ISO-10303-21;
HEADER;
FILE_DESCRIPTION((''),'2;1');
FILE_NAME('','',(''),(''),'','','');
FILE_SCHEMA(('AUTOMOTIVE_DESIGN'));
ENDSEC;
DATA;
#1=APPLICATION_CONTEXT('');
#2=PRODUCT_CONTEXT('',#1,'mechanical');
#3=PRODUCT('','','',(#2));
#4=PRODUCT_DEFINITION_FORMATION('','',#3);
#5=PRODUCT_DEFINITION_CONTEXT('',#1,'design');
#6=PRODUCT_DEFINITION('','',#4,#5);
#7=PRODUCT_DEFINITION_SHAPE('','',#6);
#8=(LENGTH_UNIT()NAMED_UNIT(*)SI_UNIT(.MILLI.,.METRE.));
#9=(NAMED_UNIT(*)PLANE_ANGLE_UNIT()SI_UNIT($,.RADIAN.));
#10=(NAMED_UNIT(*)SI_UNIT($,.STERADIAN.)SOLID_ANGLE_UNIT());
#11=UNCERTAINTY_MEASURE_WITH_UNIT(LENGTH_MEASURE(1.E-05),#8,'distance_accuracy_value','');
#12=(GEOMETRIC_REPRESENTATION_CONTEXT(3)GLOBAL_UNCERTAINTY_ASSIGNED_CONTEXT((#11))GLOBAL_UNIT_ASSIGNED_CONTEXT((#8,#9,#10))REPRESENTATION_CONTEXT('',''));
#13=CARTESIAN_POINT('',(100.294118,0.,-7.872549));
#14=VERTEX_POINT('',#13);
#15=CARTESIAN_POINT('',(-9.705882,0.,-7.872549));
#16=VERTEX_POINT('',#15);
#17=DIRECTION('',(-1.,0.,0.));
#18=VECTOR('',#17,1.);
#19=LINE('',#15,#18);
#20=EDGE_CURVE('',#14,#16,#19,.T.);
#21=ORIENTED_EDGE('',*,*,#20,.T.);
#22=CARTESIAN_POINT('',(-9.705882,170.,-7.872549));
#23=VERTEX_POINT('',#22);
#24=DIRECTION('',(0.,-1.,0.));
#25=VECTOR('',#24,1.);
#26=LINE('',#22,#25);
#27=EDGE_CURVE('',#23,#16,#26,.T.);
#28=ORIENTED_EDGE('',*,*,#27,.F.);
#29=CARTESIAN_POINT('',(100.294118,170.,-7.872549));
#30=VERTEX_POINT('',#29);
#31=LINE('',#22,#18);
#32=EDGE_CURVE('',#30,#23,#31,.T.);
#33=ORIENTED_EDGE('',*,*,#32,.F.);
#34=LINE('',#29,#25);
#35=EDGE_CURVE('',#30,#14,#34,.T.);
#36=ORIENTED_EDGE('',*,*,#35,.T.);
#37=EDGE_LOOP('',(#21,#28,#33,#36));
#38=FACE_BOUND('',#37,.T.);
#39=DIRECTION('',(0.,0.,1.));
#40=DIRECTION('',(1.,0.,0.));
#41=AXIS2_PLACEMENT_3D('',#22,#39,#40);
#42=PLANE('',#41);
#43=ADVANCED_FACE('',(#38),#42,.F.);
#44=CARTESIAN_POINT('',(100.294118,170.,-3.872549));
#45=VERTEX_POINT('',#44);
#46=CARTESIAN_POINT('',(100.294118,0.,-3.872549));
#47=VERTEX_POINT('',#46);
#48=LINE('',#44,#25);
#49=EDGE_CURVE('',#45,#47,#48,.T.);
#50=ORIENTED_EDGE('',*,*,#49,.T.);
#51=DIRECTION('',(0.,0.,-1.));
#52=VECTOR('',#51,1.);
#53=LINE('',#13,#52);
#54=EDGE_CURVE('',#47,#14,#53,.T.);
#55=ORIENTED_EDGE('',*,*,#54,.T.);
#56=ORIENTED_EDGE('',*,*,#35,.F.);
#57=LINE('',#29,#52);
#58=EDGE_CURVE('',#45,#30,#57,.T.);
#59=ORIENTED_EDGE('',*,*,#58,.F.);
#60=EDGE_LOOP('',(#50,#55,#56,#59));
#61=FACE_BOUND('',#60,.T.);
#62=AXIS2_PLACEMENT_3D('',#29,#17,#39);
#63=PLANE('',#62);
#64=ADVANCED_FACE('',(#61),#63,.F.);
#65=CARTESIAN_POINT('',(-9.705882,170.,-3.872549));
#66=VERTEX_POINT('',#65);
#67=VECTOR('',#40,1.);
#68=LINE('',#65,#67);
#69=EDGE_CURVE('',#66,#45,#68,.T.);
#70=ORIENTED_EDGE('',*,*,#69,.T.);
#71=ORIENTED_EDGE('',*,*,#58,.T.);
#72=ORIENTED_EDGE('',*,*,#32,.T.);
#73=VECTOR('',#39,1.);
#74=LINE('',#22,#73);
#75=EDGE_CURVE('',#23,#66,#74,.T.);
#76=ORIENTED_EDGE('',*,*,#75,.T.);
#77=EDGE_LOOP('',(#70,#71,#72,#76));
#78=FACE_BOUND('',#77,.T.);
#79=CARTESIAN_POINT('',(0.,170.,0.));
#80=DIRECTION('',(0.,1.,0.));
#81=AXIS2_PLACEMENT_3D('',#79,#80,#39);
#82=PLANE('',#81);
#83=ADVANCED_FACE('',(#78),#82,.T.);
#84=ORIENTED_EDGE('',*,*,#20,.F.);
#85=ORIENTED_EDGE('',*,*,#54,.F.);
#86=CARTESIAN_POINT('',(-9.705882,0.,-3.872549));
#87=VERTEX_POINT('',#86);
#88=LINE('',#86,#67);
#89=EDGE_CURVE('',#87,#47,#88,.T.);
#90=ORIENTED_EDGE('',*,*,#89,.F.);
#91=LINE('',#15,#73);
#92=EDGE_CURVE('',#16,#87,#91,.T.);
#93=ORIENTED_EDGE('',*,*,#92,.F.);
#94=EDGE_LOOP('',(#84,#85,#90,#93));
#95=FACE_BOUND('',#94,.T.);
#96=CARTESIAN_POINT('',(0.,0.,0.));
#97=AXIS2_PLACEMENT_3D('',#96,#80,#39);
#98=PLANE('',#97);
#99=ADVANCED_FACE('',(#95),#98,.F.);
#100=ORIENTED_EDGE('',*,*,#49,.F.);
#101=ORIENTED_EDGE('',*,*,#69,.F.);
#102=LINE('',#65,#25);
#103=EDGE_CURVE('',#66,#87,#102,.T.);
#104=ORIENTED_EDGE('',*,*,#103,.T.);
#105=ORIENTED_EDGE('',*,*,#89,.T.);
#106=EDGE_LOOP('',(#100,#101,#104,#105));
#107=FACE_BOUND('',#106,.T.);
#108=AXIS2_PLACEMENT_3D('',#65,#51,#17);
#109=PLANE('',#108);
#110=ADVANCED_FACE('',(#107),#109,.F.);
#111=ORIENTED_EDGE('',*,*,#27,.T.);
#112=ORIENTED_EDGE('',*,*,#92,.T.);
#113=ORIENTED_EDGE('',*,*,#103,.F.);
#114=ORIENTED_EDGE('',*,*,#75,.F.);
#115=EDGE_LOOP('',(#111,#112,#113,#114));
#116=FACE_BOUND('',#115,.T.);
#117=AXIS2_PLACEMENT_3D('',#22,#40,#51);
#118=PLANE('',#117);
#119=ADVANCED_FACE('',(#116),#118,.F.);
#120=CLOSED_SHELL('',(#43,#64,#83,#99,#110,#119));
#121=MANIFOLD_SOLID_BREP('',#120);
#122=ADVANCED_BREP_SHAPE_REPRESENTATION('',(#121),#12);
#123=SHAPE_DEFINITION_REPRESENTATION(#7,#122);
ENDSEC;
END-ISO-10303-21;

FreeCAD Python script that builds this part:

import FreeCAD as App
import Part
import Sketcher
Q = App.Units.Quantity


def add_polygon(sketch, points):
    """Adds a closed chain of lines whose ends are joined by coincident constraints."""
    first, n = sketch.GeometryCount, len(points)
    for a, b in zip(points, points[1:] + points[:1]):
        sketch.addGeometry(Part.LineSegment(App.Vector(*a, 0), App.Vector(*b, 0)), False)
    for i in range(n):
        sketch.addConstraint(Sketcher.Constraint("Coincident", first + i, 2, first + (i + 1) % n, 1))

doc = App.newDocument("Part")
params = doc.addObject("Spreadsheet::Sheet", "Params")
for row, (alias, value) in enumerate([
    ("sketch1_width", "110 mm"),
    ("sketch1_height", "4 mm"),
    ("pad1_length", "170 mm"),
], start=1):
    params.set(f"A{row}", alias)
    params.set(f"B{row}", "=" + value)
    params.setAlias(f"B{row}", alias)

body = doc.addObject("PartDesign::Body", "Body")

sketch1 = body.newObject("Sketcher::SketchObject", "Sketch")
sketch1.AttachmentSupport = (doc.getObject("XZ_Plane"), [""])
sketch1.MapMode = "FlatFace"
add_polygon(sketch1, [(-9.7, -7.9), (-9.7, -3.9), (100.3, -3.9), (100.3, -7.9)])
sketch1.addConstraint(Sketcher.Constraint("Vertical", 0))
sketch1.addConstraint(Sketcher.Constraint("Horizontal", 1))
sketch1.addConstraint(Sketcher.Constraint("Vertical", 2))
sketch1.addConstraint(Sketcher.Constraint("Horizontal", 3))
sketch1.addConstraint(Sketcher.Constraint("DistanceX", 1, 1, 1, 2, Q("110 mm")))
sketch1.addConstraint(Sketcher.Constraint("DistanceY", 0, 1, 0, 2, Q("4 mm")))
sketch1.addConstraint(Sketcher.Constraint("DistanceY", 0, 2, -1, 1, Q("3.872549 mm")))
sketch1.addConstraint(Sketcher.Constraint("DistanceX", 0, 2, -1, 1, Q("9.705882 mm")))
sketch1.setExpression("Constraints[8]", "Params.sketch1_width")
sketch1.setExpression("Constraints[9]", "Params.sketch1_height")
pad1 = body.newObject("PartDesign::Pad", "Pad")
pad1.Profile = sketch1
pad1.setExpression("Length", "Params.pad1_length")
pad1.Reversed = True

doc.recompute()
